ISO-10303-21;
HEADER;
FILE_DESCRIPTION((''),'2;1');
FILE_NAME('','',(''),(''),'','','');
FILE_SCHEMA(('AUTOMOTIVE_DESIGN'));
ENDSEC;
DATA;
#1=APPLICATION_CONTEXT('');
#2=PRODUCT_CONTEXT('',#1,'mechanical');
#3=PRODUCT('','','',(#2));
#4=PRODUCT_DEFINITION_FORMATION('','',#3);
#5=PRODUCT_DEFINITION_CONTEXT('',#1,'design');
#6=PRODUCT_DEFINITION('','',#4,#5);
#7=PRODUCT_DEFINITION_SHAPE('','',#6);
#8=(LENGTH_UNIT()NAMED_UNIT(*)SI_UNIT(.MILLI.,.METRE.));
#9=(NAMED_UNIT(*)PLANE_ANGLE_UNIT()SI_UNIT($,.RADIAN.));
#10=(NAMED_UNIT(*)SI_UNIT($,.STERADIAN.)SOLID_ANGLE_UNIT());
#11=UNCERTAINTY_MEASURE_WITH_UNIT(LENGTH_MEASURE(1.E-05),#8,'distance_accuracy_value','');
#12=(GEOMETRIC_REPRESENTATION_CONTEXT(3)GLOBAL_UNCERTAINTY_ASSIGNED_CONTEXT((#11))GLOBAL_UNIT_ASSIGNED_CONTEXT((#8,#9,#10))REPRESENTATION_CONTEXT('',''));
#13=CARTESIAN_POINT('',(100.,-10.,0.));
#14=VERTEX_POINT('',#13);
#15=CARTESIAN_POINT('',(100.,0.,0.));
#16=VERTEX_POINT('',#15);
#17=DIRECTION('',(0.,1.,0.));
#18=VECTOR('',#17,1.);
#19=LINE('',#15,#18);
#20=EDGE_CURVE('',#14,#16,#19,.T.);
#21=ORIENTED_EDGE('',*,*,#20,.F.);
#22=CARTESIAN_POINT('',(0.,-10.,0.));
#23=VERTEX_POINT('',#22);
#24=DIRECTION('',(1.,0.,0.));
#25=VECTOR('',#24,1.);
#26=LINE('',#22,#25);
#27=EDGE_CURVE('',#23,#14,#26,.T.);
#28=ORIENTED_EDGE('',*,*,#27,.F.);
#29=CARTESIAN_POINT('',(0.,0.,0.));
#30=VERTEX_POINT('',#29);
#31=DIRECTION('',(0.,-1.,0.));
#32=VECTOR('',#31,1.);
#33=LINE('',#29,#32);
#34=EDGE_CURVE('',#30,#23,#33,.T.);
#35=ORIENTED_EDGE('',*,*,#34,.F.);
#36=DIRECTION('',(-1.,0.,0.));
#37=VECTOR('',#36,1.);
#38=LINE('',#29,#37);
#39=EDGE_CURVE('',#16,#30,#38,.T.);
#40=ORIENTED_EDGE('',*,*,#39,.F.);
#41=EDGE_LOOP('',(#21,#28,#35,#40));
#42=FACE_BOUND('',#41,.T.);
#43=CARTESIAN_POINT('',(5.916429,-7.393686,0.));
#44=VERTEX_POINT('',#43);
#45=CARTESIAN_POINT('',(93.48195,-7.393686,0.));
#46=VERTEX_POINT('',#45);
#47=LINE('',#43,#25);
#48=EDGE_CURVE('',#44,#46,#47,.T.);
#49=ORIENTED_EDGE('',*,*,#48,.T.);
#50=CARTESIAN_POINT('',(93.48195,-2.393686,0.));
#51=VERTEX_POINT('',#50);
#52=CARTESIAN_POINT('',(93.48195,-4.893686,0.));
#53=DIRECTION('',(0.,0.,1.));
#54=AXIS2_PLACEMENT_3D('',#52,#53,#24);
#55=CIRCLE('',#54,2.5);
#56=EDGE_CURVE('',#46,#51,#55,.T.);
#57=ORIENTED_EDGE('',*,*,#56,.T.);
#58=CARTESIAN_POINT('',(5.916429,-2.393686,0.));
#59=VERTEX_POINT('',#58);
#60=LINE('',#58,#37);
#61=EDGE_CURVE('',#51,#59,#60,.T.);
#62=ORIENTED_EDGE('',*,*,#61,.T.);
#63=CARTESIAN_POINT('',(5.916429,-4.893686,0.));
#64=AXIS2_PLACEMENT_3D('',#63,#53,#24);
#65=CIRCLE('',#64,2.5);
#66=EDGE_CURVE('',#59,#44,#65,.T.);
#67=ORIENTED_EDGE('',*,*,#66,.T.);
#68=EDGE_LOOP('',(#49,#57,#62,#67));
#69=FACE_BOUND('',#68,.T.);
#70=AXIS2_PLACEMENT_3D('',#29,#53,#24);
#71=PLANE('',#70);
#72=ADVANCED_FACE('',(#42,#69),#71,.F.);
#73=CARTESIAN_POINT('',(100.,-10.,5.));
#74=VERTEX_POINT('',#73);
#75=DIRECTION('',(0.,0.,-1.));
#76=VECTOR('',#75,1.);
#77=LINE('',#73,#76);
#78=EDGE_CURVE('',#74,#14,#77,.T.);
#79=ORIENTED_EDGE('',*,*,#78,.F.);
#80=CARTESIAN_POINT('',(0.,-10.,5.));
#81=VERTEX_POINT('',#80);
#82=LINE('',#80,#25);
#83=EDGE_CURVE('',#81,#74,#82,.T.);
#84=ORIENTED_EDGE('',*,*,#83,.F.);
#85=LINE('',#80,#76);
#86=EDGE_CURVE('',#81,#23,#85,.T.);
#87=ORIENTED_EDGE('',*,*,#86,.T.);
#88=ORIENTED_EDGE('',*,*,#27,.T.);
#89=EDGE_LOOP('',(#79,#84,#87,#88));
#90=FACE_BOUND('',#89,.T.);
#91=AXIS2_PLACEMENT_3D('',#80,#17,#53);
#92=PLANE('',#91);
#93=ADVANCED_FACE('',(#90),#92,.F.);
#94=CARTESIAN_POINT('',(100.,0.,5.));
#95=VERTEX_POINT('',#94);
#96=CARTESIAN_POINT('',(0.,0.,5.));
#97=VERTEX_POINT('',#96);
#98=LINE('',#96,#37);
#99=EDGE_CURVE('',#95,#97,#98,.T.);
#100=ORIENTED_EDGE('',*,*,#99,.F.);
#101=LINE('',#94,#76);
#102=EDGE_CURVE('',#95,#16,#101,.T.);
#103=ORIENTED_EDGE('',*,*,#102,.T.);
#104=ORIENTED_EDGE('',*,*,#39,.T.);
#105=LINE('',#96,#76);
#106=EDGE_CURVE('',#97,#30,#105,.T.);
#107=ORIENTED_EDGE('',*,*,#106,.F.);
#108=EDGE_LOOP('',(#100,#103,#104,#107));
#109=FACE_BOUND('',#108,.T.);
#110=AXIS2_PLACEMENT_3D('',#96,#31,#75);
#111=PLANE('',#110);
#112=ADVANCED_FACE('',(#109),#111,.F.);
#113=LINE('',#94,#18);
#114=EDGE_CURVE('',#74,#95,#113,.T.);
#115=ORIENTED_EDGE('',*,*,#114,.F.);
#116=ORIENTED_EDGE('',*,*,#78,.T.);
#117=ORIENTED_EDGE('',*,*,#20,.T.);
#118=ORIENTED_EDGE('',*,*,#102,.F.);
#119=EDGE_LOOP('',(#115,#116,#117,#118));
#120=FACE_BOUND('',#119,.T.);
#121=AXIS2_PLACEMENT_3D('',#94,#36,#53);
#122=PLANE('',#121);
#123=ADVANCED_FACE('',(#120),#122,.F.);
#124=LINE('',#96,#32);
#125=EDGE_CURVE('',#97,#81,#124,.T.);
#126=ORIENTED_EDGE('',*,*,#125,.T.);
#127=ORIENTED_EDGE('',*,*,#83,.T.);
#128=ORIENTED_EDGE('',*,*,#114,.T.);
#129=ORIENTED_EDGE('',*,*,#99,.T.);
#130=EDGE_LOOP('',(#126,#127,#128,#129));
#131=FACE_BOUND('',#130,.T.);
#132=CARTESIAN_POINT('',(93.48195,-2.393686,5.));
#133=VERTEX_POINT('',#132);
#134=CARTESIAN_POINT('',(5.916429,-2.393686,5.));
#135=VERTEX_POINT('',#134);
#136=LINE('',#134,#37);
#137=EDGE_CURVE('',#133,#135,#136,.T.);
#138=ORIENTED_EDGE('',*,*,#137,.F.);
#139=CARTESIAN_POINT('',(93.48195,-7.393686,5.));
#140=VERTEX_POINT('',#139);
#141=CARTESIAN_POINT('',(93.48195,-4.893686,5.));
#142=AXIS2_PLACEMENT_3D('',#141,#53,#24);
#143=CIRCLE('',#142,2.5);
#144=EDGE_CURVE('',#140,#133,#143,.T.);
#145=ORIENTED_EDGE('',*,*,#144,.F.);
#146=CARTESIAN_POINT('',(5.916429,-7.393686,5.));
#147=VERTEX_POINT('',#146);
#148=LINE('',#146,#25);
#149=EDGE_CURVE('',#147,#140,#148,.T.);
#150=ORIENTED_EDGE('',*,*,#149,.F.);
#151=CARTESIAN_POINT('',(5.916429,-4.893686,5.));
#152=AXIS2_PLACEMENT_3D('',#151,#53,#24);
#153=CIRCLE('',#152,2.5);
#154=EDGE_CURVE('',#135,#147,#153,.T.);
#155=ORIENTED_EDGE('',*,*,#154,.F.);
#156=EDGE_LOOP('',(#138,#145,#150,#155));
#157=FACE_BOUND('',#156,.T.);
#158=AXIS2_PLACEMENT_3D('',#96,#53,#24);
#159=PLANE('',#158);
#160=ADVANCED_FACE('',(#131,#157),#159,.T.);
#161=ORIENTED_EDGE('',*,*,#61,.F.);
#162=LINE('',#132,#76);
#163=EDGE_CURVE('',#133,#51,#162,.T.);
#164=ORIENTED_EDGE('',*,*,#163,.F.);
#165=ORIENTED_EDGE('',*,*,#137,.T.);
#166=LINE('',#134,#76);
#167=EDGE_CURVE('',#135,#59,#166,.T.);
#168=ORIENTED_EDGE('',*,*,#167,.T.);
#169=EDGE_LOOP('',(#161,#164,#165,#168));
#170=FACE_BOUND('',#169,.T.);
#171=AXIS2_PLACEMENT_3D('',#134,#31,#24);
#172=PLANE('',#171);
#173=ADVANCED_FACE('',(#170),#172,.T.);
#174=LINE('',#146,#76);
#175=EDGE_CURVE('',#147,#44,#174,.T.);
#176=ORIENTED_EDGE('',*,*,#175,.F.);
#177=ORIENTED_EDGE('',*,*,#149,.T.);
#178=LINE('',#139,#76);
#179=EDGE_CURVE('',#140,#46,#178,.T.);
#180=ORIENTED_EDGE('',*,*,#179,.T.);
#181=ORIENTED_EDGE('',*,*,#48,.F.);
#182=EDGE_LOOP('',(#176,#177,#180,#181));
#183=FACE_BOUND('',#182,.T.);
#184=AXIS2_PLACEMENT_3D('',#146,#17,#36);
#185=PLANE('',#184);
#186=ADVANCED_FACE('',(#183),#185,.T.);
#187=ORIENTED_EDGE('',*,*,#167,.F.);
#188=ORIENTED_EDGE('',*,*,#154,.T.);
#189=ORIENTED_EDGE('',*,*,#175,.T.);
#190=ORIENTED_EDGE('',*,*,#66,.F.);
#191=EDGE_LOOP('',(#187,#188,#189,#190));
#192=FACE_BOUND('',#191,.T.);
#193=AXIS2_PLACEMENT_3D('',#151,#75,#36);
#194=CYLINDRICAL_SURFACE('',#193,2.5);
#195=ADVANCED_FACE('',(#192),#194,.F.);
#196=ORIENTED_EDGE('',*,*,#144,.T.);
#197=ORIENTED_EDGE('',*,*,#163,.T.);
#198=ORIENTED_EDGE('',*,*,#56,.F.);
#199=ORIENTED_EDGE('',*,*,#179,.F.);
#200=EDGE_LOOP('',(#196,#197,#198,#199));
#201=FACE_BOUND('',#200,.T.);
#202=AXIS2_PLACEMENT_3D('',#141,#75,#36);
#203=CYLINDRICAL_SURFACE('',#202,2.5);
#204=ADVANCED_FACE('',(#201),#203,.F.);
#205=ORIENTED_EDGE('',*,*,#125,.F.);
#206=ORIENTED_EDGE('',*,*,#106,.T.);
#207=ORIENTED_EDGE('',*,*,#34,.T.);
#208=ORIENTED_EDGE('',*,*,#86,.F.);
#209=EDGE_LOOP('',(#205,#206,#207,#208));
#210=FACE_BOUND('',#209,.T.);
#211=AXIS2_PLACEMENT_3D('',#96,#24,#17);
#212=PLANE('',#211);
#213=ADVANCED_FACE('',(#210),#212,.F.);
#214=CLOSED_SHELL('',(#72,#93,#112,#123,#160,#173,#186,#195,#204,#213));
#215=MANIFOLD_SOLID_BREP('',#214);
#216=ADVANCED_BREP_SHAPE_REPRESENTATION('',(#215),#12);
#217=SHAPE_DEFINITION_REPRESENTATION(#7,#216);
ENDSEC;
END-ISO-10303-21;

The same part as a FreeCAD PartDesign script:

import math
import FreeCAD as App
import Part
import Sketcher

V = App.Vector
Q = App.Units.Quantity


def add_polygon(sketch, points):
    """Adds a closed chain of lines whose ends are joined by coincident constraints."""
    first, n = sketch.GeometryCount, len(points)
    for a, b in zip(points, points[1:] + points[:1]):
        sketch.addGeometry(Part.LineSegment(App.Vector(*a, 0), App.Vector(*b, 0)), False)
    for i in range(n):
        sketch.addConstraint(Sketcher.Constraint("Coincident", first + i, 2, first + (i + 1) % n, 1))

doc = App.newDocument("Part")
params = doc.addObject("Spreadsheet::Sheet", "Params")
for row, (alias, value) in enumerate([
    ("sketch1_radius", "2.5 mm"),
    ("sketch1_width", "100 mm"),
    ("sketch1_height", "10 mm"),
    ("pad1_length", "5 mm"),
], start=1):
    params.set(f"A{row}", alias)
    params.set(f"B{row}", "=" + value)
    params.setAlias(f"B{row}", alias)

body = doc.addObject("PartDesign::Body", "Body")

# Sketch on XY plane
sketch1 = body.newObject("Sketcher::SketchObject", "Sketch")
sketch1.AttachmentSupport = (doc.getObject("XY_Plane"), [""])
sketch1.MapMode = "FlatFace"
add_polygon(sketch1, [(0, 0), (0, -10), (100, -10), (100, 0)])  # lines 0-3
sketch1.addGeometry(Part.ArcOfCircle(Part.Circle(V(5.916429, -4.893686, 0), V(0, 0, 1), 2.5), math.radians(90), math.radians(270)), False)  # 4
sketch1.addGeometry(Part.LineSegment(V(5.916429, -2.393686, 0), V(93.48195, -2.393686, 0)), False)  # 5
sketch1.addGeometry(Part.ArcOfCircle(Part.Circle(V(93.48195, -4.893686, 0), V(0, 0, 1), 2.5), math.radians(-90), math.radians(90)), False)  # 6
sketch1.addGeometry(Part.LineSegment(V(93.48195, -7.393686, 0), V(5.916429, -7.393686, 0)), False)  # 7
sketch1.addConstraint(Sketcher.Constraint("Tangent", 4, 1, 5, 1))
sketch1.addConstraint(Sketcher.Constraint("Tangent", 5, 2, 6, 2))
sketch1.addConstraint(Sketcher.Constraint("Tangent", 6, 1, 7, 1))
sketch1.addConstraint(Sketcher.Constraint("Tangent", 7, 2, 4, 2))
sketch1.addConstraint(Sketcher.Constraint("Vertical", 0))
sketch1.addConstraint(Sketcher.Constraint("Horizontal", 1))
sketch1.addConstraint(Sketcher.Constraint("Vertical", 2))
sketch1.addConstraint(Sketcher.Constraint("Horizontal", 3))
sketch1.addConstraint(Sketcher.Constraint("Horizontal", 5))
sketch1.addConstraint(Sketcher.Constraint("Horizontal", 7))
sketch1.addConstraint(Sketcher.Constraint("Coincident", 3, 2, -1, 1))
sketch1.addConstraint(Sketcher.Constraint("Radius", 4, Q("2.5 mm")))
sketch1.addConstraint(Sketcher.Constraint("DistanceX", 1, 1, 1, 2, Q("100 mm")))
sketch1.addConstraint(Sketcher.Constraint("DistanceY", 0, 2, 0, 1, Q("10 mm")))
sketch1.addConstraint(Sketcher.Constraint("DistanceX", 5, 1, 5, 2, Q("87.565522 mm")))
sketch1.addConstraint(Sketcher.Constraint("DistanceX", -1, 1, 4, 3, Q("5.916429 mm")))
sketch1.addConstraint(Sketcher.Constraint("DistanceY", 4, 3, -1, 1, Q("4.893686 mm")))
sketch1.setExpression("Constraints[15]", "Params.sketch1_radius")
sketch1.setExpression("Constraints[16]", "Params.sketch1_width")
sketch1.setExpression("Constraints[17]", "Params.sketch1_height")
pad1 = body.newObject("PartDesign::Pad", "Pad")
pad1.Profile = sketch1
pad1.setExpression("Length", "Params.pad1_length")

doc.recompute()
